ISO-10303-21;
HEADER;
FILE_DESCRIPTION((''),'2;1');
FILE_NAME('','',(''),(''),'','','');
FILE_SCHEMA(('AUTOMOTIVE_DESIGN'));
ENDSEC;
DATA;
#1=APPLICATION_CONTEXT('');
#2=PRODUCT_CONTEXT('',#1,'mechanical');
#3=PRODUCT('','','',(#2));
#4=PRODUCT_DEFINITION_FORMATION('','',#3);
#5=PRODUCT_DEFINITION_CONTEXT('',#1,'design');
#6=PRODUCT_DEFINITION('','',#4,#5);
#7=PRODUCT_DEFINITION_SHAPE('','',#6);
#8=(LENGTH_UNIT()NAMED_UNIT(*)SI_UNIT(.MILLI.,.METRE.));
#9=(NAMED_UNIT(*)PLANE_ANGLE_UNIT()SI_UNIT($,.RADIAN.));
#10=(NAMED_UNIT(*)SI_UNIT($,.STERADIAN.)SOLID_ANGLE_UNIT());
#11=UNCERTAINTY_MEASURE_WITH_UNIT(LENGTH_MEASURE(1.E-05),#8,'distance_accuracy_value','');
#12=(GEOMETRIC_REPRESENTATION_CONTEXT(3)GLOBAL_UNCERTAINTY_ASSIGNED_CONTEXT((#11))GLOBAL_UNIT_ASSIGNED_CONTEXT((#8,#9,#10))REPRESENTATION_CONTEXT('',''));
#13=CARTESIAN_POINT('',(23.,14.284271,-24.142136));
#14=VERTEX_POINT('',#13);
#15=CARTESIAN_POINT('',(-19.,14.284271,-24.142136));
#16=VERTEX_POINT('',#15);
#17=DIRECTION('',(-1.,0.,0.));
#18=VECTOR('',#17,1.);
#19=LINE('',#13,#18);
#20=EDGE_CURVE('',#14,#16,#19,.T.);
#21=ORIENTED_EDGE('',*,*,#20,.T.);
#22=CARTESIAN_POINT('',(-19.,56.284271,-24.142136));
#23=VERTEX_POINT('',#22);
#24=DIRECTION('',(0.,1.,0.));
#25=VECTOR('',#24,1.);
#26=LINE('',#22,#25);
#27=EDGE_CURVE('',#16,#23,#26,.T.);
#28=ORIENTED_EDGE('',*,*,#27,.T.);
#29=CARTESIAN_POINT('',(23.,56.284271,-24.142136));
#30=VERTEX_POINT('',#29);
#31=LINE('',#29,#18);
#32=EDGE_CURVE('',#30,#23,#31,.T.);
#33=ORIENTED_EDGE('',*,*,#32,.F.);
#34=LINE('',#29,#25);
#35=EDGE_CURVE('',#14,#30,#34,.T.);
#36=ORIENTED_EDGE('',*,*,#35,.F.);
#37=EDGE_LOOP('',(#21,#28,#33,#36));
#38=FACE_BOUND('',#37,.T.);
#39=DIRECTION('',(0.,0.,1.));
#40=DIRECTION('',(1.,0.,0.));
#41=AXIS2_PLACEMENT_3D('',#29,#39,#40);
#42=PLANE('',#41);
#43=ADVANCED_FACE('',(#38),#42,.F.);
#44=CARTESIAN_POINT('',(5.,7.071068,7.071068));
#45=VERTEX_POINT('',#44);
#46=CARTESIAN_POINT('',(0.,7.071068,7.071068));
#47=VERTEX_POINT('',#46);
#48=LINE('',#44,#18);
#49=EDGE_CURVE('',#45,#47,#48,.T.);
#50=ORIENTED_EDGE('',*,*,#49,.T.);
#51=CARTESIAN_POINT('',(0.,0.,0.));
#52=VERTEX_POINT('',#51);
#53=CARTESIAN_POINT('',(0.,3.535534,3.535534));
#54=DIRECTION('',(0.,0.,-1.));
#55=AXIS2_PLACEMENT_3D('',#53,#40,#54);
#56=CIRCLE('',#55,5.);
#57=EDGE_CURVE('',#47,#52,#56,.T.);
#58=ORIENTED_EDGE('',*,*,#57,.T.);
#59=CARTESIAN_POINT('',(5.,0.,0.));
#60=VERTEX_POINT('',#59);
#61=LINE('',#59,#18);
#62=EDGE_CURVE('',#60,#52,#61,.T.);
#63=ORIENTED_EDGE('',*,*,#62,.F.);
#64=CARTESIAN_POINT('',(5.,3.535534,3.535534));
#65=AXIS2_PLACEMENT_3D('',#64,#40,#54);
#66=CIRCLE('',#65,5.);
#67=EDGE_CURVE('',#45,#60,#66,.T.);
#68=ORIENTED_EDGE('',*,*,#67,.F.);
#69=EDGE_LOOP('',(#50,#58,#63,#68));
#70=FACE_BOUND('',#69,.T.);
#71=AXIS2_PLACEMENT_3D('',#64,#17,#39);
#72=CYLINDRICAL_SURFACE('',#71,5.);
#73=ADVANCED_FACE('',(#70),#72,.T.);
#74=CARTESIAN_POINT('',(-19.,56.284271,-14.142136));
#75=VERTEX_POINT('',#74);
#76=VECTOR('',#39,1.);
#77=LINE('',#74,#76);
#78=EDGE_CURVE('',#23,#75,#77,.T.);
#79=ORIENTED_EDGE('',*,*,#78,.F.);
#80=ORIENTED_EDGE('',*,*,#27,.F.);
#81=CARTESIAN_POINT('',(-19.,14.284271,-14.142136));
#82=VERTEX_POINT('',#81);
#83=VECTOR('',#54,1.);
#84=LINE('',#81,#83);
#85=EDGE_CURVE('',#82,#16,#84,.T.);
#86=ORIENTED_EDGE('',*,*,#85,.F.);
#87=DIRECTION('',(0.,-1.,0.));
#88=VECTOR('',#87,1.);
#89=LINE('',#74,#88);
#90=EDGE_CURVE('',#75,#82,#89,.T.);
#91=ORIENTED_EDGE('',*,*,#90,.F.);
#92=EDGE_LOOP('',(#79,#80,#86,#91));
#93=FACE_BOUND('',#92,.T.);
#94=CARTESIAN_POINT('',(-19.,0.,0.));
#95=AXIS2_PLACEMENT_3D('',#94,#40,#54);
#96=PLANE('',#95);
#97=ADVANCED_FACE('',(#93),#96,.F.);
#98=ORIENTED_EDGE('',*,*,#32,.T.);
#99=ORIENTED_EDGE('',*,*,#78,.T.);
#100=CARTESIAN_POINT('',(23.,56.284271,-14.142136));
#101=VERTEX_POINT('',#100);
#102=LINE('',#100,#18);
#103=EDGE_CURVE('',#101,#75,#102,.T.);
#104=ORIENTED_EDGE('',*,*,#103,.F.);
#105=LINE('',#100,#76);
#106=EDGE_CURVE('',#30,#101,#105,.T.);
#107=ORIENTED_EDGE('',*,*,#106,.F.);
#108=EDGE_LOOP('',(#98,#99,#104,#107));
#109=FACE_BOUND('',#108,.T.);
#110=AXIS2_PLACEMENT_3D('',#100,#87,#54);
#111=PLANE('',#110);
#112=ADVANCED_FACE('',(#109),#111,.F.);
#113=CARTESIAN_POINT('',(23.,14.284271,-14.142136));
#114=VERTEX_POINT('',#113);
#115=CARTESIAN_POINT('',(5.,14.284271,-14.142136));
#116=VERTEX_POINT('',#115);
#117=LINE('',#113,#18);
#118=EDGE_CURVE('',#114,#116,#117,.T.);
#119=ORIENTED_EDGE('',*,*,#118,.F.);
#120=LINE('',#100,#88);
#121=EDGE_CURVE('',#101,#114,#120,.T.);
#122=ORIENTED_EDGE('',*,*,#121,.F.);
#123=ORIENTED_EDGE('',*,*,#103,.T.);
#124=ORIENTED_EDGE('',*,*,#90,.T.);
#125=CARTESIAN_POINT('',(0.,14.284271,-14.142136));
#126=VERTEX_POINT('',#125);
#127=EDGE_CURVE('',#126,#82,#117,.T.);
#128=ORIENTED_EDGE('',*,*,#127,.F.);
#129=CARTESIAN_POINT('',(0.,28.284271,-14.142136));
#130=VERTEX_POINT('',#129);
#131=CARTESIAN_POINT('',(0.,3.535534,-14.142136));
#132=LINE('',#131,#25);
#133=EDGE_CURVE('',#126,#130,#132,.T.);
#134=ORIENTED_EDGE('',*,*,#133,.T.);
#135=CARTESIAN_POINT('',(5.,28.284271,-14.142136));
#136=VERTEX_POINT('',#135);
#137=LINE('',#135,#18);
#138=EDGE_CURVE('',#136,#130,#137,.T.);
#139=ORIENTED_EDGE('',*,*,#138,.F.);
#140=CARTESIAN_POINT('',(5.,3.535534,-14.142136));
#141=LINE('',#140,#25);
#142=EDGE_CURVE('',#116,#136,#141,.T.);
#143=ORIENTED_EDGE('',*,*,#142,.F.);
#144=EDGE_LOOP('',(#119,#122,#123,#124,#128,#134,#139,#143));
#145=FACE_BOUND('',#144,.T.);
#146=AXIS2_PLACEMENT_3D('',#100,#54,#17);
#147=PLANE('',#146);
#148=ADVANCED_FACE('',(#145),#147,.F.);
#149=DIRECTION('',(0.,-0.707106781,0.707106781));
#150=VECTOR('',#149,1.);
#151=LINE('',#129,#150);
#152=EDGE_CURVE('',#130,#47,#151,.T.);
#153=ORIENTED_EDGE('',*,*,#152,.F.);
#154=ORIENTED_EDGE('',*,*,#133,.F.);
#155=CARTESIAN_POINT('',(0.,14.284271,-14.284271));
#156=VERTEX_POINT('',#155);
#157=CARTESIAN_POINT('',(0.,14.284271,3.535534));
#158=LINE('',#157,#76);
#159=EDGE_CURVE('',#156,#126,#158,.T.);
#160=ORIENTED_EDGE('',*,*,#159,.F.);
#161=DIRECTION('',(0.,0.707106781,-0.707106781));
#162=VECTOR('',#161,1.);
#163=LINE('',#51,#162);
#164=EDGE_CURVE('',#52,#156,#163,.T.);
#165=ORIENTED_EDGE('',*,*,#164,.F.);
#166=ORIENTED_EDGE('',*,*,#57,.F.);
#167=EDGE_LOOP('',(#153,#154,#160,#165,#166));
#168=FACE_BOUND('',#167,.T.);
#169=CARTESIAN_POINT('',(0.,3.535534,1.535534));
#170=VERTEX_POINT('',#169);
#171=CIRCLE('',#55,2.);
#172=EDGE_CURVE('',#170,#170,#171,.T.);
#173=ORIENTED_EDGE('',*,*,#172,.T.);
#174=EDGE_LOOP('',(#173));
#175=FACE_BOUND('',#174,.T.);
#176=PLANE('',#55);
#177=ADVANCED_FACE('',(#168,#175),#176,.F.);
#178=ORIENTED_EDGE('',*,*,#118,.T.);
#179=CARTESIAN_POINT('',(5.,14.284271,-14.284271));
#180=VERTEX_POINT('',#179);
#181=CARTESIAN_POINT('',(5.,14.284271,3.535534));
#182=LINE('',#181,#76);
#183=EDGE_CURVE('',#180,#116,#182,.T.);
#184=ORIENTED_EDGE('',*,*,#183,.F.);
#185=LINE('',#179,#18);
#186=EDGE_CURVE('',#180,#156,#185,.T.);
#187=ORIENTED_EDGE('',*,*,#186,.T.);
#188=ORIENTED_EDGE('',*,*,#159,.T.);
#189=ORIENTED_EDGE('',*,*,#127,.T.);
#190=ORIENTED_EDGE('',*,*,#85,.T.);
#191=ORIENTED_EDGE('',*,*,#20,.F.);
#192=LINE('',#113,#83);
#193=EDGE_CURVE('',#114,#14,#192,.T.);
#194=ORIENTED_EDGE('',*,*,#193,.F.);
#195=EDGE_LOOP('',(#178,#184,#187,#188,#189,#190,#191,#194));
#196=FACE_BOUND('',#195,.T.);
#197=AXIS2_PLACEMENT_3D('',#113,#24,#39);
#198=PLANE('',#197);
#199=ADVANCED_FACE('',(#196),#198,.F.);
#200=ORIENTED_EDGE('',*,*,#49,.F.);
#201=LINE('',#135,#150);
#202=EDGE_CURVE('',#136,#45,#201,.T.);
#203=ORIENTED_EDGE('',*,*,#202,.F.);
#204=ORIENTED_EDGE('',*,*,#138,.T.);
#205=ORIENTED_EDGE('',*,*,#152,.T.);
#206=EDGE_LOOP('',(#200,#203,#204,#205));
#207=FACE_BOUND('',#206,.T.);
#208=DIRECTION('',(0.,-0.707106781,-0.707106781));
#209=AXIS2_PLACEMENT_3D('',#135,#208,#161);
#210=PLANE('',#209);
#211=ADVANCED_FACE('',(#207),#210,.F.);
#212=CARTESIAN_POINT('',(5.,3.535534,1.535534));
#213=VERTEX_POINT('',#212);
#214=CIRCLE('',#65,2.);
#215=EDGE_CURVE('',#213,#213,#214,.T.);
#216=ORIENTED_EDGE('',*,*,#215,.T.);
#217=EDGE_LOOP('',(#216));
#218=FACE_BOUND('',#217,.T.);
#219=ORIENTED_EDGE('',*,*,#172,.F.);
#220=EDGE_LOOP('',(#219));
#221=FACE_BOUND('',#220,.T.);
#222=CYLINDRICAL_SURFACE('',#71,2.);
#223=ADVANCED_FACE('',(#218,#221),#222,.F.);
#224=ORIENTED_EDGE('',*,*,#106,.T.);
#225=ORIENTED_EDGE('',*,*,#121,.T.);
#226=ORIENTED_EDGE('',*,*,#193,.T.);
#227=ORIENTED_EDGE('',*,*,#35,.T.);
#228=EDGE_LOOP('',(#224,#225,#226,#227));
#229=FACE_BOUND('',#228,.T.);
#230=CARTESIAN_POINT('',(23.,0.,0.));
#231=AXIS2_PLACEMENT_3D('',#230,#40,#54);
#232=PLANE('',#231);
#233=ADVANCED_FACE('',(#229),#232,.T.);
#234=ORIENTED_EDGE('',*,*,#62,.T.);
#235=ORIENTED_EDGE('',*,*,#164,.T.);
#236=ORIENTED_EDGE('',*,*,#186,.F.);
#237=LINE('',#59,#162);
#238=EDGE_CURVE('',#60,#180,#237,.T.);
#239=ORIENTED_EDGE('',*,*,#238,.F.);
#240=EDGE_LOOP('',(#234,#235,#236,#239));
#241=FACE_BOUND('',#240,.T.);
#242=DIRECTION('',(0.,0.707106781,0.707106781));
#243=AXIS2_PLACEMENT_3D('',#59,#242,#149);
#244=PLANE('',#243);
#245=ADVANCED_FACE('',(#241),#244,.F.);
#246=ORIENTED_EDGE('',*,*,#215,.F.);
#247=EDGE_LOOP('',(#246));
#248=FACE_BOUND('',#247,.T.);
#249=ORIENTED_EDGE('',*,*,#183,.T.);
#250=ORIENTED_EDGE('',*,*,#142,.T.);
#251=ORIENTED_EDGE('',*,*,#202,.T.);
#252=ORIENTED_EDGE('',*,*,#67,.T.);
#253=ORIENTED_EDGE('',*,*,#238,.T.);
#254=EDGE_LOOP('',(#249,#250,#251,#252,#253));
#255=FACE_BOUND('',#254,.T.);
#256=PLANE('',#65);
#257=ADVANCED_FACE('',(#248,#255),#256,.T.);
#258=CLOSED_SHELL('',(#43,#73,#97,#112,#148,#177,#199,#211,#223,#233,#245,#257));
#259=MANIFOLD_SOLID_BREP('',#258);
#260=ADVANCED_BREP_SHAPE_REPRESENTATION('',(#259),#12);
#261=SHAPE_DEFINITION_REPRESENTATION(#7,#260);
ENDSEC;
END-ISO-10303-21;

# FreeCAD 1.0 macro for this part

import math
import FreeCAD as App
import Part
import Sketcher
Q = App.Units.Quantity


def add_polygon(sketch, points):
    """Adds a closed chain of lines whose ends are joined by coincident constraints."""
    first, n = sketch.GeometryCount, len(points)
    for a, b in zip(points, points[1:] + points[:1]):
        sketch.addGeometry(Part.LineSegment(App.Vector(*a, 0), App.Vector(*b, 0)), False)
    for i in range(n):
        sketch.addConstraint(Sketcher.Constraint("Coincident", first + i, 2, first + (i + 1) % n, 1))

doc = App.newDocument("Part")
body = doc.addObject("PartDesign::Body", "Body")

sketch1 = body.newObject("Sketcher::SketchObject", "Sketch")
sketch1.AttachmentSupport = (doc.getObject("YZ_Plane"), [""])
sketch1.MapMode = "FlatFace"
sketch1.addGeometry([
    Part.LineSegment(App.Vector(0, 0, 0), App.Vector(21.213203, -21.213203, 0)),
    Part.LineSegment(App.Vector(21.213203, -21.213203, 0), App.Vector(28.284271, -14.142136, 0)),
    Part.LineSegment(App.Vector(28.284271, -14.142136, 0), App.Vector(7.071068, 7.071068, 0)),
    Part.ArcOfCircle(Part.Circle(App.Vector(3.535534, 3.535534, 0), App.Vector(0, 0, 1), 5), math.radians(45), math.radians(225)),
    Part.Circle(App.Vector(3.535534, 3.535534, 0), App.Vector(0, 0, 1), 2),
], False)
sketch1.addConstraint([
    Sketcher.Constraint("Coincident", 0, 2, 1, 1),
    Sketcher.Constraint("Coincident", 1, 2, 2, 1),
    Sketcher.Constraint("Tangent", 2, 2, 3, 1),
    Sketcher.Constraint("Tangent", 3, 2, 0, 1),
    Sketcher.Constraint("Coincident", 3, 2, -1, 1),
    Sketcher.Constraint("Coincident", 4, 3, 3, 3),
    Sketcher.Constraint("Perpendicular", 0, 1),
    Sketcher.Constraint("Perpendicular", 1, 2),
    Sketcher.Constraint("Diameter", 4, 4.0),
    Sketcher.Constraint("Radius", 3, 5.0),
    Sketcher.Constraint("Angle", 0, Q("-45 deg")),
    Sketcher.Constraint("Distance", 0, 30.0),
])
pad1 = body.newObject("PartDesign::Pad", "Pad")
pad1.Profile = sketch1
pad1.Length = 5

sketch2 = body.newObject("Sketcher::SketchObject", "Sketch001")
sketch2.AttachmentSupport = (doc.getObject("YZ_Plane"), [""])
sketch2.MapMode = "FlatFace"
sketch2.AttachmentOffset = App.Placement(App.Vector(0, 0, 5), App.Rotation())
add_polygon(sketch2, [(56.284271, -14.142136), (14.284271, -14.142136), (14.284271, -24.142136), (56.284271, -24.142136)])
sketch2.addConstraint([
    Sketcher.Constraint("Horizontal", 0),
    Sketcher.Constraint("Vertical", 1),
    Sketcher.Constraint("Horizontal", 2),
    Sketcher.Constraint("Vertical", 3),
    Sketcher.Constraint("DistanceX", 0, 2, 0, 1, 42.0),
    Sketcher.Constraint("DistanceY", 1, 2, 1, 1, 10.0),
    Sketcher.Constraint("DistanceX", -1, 1, 0, 2, 14.284271),
    Sketcher.Constraint("DistanceY", 0, 2, -1, 1, 14.142136),
])
pad2 = body.newObject("PartDesign::Pad", "Pad001")
pad2.Profile = sketch2
pad2.Type = "TwoLengths"
pad2.Length = 18
pad2.Length2 = 24

doc.recompute()
